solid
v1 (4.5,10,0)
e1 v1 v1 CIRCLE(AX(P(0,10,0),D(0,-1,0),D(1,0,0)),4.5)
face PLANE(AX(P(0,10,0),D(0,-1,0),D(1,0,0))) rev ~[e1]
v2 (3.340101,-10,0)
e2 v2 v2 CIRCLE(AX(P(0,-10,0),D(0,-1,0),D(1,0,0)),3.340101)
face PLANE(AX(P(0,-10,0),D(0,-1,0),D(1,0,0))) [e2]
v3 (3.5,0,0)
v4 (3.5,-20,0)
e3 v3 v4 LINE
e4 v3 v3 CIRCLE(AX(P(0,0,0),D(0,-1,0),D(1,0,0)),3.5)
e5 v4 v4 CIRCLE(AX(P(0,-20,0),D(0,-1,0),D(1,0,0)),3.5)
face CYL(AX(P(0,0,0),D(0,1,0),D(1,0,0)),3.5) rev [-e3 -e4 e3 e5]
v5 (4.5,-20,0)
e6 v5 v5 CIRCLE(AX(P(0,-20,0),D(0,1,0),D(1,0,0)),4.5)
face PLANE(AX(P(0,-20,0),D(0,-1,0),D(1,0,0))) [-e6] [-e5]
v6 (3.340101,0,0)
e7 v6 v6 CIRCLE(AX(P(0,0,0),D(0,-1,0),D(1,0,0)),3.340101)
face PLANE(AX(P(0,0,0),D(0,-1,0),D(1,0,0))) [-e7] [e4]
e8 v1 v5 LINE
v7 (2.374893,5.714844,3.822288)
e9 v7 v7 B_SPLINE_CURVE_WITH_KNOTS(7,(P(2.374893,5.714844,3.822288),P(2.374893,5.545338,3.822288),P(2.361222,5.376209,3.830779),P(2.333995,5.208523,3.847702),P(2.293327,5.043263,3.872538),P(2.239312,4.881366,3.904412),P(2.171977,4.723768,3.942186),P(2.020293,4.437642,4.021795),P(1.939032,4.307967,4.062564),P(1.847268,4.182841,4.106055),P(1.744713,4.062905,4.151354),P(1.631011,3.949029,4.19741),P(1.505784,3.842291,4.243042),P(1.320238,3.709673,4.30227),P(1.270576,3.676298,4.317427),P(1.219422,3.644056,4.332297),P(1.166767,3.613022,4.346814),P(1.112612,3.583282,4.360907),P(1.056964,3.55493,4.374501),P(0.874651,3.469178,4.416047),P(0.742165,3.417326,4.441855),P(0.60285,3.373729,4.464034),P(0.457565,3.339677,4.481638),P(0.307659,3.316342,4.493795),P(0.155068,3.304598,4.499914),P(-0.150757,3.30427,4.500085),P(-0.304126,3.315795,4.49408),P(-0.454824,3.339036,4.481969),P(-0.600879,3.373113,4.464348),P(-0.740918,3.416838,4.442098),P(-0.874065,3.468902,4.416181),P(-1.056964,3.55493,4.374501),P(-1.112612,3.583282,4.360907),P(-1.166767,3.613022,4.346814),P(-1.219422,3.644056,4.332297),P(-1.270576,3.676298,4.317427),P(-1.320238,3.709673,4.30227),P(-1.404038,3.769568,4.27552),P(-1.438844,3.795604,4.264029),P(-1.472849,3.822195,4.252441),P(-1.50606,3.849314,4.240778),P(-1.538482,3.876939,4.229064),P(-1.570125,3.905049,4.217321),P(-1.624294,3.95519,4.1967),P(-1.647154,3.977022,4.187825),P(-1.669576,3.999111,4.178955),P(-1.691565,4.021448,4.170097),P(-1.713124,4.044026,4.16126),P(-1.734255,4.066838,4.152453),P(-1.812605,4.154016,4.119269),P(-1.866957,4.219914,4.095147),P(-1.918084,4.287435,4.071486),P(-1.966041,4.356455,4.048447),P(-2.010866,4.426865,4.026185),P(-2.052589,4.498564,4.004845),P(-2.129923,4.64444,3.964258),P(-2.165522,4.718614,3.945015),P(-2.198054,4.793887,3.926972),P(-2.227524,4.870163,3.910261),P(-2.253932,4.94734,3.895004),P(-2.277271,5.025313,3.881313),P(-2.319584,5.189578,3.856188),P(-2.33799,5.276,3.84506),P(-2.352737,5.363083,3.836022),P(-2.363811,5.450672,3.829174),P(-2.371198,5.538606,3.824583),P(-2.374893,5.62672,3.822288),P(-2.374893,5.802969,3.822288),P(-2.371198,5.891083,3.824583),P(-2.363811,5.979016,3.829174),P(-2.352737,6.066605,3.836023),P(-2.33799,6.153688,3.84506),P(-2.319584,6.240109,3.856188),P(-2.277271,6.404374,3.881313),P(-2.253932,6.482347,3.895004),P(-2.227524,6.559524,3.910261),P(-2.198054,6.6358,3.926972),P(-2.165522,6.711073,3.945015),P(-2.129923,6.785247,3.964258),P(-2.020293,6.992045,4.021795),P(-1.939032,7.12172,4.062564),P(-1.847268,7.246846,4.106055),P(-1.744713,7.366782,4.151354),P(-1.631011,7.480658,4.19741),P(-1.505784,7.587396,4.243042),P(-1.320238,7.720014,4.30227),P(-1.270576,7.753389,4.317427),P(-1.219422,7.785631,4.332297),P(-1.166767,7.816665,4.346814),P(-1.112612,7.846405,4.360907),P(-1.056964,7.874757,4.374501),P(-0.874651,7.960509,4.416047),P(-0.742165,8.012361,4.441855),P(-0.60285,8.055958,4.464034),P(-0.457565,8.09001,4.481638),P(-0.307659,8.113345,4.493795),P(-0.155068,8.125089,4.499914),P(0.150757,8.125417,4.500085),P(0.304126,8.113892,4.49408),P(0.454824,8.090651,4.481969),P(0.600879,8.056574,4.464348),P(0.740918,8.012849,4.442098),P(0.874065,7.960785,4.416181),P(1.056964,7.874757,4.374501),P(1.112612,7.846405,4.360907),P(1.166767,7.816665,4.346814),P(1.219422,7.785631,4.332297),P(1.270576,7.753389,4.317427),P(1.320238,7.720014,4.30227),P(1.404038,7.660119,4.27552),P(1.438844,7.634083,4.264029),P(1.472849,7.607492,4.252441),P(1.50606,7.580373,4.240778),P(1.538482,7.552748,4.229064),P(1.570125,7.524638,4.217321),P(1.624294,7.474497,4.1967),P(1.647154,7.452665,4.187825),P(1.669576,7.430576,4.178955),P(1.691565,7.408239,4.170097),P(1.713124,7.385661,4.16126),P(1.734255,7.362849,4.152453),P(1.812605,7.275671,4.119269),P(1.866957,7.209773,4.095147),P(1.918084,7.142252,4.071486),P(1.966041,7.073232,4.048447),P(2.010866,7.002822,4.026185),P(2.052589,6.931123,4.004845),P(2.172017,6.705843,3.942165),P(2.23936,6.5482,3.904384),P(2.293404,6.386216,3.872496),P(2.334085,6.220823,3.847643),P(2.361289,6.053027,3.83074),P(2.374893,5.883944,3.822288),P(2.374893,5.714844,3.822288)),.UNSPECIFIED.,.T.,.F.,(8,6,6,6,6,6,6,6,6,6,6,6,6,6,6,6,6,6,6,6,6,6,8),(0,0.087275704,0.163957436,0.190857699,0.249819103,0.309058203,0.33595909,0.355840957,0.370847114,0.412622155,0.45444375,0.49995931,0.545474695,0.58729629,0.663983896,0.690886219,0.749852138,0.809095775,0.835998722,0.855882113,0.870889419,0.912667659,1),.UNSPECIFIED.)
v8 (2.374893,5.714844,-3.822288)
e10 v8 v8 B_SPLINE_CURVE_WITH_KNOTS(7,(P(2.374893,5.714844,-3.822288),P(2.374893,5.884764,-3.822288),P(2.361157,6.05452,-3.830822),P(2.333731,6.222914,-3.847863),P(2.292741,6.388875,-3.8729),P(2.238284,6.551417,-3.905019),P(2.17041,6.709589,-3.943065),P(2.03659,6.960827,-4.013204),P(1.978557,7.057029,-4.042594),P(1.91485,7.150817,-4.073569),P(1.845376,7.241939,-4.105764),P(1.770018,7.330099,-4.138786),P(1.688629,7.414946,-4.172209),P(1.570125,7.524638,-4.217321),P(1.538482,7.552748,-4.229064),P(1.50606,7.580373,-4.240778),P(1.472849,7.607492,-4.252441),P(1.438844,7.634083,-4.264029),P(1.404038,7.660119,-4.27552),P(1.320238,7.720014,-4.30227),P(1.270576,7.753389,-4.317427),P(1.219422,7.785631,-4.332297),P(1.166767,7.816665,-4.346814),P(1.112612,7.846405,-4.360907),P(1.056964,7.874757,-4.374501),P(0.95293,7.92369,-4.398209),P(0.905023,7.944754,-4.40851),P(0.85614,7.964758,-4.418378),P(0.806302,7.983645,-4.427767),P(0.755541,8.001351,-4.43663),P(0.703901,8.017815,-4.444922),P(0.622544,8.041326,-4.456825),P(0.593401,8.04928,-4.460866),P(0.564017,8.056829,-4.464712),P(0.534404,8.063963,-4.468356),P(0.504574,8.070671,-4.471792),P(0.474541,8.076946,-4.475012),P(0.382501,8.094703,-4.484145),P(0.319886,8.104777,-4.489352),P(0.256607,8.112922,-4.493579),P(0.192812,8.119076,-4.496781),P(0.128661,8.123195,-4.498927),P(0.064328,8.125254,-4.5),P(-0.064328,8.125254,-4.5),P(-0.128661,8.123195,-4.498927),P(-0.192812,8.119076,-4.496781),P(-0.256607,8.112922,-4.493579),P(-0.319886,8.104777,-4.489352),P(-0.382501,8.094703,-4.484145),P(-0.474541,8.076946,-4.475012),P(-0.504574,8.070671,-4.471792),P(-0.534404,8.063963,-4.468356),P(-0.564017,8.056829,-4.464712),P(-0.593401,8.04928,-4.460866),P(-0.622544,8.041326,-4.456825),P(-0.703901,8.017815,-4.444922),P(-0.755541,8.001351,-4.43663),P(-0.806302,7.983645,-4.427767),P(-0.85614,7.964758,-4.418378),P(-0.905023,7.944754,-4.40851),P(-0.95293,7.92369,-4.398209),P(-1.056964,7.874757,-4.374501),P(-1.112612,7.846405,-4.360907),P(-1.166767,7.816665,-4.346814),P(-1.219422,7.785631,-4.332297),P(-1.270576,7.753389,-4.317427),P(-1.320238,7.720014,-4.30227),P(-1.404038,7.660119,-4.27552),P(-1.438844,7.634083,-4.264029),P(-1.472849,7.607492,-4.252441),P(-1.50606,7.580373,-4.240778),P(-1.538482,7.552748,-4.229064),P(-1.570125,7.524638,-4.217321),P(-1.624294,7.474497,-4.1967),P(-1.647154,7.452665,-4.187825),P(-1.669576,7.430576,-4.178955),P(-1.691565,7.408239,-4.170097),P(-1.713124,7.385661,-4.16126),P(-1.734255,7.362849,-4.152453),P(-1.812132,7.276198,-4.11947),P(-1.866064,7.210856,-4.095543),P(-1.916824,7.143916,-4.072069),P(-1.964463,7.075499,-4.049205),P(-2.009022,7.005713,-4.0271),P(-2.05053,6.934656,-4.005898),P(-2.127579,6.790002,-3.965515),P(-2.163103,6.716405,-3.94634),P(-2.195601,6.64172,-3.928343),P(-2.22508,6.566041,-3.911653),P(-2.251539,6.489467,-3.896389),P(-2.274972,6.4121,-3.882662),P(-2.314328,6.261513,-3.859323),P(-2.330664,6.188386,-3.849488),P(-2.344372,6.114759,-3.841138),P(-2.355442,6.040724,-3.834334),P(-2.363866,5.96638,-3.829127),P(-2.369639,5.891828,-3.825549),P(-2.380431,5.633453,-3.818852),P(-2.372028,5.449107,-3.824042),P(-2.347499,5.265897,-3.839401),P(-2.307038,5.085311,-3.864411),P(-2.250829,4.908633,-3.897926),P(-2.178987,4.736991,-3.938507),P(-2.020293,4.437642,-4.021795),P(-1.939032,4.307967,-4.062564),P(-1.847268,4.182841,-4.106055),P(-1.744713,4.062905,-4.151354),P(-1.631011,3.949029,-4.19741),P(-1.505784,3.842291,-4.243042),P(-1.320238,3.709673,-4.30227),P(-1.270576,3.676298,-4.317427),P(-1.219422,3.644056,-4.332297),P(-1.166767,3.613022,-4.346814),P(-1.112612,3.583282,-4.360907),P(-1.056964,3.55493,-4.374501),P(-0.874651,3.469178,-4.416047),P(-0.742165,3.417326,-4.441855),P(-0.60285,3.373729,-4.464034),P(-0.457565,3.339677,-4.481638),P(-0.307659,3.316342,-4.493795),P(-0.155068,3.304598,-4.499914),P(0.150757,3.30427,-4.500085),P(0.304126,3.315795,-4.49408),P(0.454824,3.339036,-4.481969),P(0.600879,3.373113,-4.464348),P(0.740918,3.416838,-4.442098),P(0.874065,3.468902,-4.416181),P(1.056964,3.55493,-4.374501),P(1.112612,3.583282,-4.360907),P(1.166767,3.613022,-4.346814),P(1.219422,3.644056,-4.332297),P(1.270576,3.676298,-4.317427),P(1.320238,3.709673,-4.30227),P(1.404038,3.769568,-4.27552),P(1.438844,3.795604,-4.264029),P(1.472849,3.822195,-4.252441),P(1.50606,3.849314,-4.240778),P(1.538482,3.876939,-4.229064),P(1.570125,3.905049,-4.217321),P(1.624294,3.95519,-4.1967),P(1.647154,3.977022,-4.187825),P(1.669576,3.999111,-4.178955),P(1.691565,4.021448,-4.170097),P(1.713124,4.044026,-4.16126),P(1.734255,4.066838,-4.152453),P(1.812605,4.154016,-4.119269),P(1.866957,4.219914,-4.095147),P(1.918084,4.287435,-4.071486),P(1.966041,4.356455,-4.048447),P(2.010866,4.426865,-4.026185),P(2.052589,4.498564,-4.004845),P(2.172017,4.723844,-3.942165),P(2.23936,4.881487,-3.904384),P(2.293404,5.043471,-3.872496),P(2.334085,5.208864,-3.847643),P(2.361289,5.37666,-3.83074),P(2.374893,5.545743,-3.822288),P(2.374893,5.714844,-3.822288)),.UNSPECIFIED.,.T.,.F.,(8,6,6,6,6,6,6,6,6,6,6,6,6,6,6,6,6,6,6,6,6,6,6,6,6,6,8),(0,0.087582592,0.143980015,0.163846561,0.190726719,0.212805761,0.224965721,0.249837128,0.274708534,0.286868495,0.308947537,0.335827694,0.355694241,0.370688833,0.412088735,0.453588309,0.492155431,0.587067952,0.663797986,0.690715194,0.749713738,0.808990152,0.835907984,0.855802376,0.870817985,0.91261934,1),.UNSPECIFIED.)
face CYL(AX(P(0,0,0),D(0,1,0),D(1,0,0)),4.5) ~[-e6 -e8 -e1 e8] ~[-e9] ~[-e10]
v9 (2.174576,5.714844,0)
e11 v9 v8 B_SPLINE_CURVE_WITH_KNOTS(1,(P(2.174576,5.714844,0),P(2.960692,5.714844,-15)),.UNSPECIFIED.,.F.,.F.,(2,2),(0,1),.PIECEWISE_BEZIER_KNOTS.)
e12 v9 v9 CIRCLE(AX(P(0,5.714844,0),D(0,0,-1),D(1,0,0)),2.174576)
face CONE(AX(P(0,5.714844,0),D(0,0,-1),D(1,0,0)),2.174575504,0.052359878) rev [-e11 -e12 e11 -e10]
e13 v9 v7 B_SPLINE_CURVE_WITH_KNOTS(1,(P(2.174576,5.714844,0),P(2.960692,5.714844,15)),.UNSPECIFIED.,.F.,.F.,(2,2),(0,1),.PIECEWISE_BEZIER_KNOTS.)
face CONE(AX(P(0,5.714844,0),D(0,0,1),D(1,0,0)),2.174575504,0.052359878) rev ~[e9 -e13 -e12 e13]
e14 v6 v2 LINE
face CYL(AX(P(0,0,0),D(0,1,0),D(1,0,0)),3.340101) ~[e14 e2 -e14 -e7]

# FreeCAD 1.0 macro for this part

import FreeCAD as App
import Part
import Sketcher

V = App.Vector


def faces_at(feature, points):
    """Names of the faces that lie closest to the given points."""
    faces = feature.Shape.Faces
    near = lambda p: min(range(len(faces)), key=lambda i: faces[i].distToShape(Part.Vertex(*p))[0])
    return sorted({f"Face{near(p) + 1}" for p in points})

doc = App.newDocument("Part")
body = doc.addObject("PartDesign::Body", "Body")

# Sketch on XZ plane
sketch1 = doc.addObject("Sketcher::SketchObject", "Sketch")
body.addObject(sketch1)
sketch1.AttachmentSupport = (doc.XZ_Plane, [""])
sketch1.MapMode = "FlatFace"
sketch1.addGeometry(Part.Circle(V(0, 0, 0), V(0, 0, 1), 3.5), False)
sketch1.addConstraint([
    Sketcher.Constraint("Coincident", 0, 3, -1, 1),
    Sketcher.Constraint("Diameter", 0, 7.0),
])
pad1 = doc.addObject("PartDesign::Pad", "Pad")
body.addObject(pad1)
pad1.Profile = sketch1
pad1.Length = 20
doc.recompute()

thickness = doc.addObject("PartDesign::Thickness", "Thickness")
body.addObject(thickness)
thickness.Base = (pad1, faces_at(pad1, [(0, -20, 0)]))
thickness.Value = 1
thickness.Reversed = False
thickness.Join = "Intersection"

# Sketch on XZ plane
sketch2 = doc.addObject("Sketcher::SketchObject", "Sketch001")
body.addObject(sketch2)
sketch2.AttachmentSupport = (doc.XZ_Plane, [""])
sketch2.MapMode = "FlatFace"
sketch2.addGeometry(Part.Circle(V(0, 0, 0), V(0, 0, 1), 3.340101), False)
sketch2.addConstraint([
    Sketcher.Constraint("Coincident", 0, 3, -1, 1),
    Sketcher.Constraint("Diameter", 0, 6.680202),
])
pad2 = doc.addObject("PartDesign::Pad", "Pad001")
body.addObject(pad2)
pad2.Profile = sketch2
pad2.Length = 10

# Sketch on XZ plane
sketch3 = doc.addObject("Sketcher::SketchObject", "Sketch002")
body.addObject(sketch3)
sketch3.AttachmentSupport = (doc.XZ_Plane, [""])
sketch3.MapMode = "FlatFace"
sketch3.addGeometry(Part.Circle(V(0, 0, 0), V(0, 0, 1), 4.5), False)
sketch3.addConstraint([
    Sketcher.Constraint("Coincident", 0, 3, -1, 1),
    Sketcher.Constraint("Diameter", 0, 9.0),
])
pad3 = doc.addObject("PartDesign::Pad", "Pad002")
body.addObject(pad3)
pad3.Profile = sketch3
pad3.Length = 10
pad3.Reversed = True

# Sketch on XY plane
sketch4 = doc.addObject("Sketcher::SketchObject", "Sketch003")
body.addObject(sketch4)
sketch4.AttachmentSupport = (doc.XY_Plane, [""])
sketch4.MapMode = "FlatFace"
sketch4.addGeometry(Part.Circle(V(0, 5.714844, 0), V(0, 0, 1), 2.174576), False)
sketch4.addConstraint([
    Sketcher.Constraint("PointOnObject", 0, 3, -2),
    Sketcher.Constraint("Diameter", 0, 4.349151),
    Sketcher.Constraint("DistanceY", -1, 1, 0, 3, 5.714844),
])
pocket1 = doc.addObject("PartDesign::Pocket", "Pocket")
body.addObject(pocket1)
pocket1.Profile = sketch4
pocket1.Length = 30
pocket1.Midplane = True
pocket1.TaperAngle = 3

doc.recompute()
